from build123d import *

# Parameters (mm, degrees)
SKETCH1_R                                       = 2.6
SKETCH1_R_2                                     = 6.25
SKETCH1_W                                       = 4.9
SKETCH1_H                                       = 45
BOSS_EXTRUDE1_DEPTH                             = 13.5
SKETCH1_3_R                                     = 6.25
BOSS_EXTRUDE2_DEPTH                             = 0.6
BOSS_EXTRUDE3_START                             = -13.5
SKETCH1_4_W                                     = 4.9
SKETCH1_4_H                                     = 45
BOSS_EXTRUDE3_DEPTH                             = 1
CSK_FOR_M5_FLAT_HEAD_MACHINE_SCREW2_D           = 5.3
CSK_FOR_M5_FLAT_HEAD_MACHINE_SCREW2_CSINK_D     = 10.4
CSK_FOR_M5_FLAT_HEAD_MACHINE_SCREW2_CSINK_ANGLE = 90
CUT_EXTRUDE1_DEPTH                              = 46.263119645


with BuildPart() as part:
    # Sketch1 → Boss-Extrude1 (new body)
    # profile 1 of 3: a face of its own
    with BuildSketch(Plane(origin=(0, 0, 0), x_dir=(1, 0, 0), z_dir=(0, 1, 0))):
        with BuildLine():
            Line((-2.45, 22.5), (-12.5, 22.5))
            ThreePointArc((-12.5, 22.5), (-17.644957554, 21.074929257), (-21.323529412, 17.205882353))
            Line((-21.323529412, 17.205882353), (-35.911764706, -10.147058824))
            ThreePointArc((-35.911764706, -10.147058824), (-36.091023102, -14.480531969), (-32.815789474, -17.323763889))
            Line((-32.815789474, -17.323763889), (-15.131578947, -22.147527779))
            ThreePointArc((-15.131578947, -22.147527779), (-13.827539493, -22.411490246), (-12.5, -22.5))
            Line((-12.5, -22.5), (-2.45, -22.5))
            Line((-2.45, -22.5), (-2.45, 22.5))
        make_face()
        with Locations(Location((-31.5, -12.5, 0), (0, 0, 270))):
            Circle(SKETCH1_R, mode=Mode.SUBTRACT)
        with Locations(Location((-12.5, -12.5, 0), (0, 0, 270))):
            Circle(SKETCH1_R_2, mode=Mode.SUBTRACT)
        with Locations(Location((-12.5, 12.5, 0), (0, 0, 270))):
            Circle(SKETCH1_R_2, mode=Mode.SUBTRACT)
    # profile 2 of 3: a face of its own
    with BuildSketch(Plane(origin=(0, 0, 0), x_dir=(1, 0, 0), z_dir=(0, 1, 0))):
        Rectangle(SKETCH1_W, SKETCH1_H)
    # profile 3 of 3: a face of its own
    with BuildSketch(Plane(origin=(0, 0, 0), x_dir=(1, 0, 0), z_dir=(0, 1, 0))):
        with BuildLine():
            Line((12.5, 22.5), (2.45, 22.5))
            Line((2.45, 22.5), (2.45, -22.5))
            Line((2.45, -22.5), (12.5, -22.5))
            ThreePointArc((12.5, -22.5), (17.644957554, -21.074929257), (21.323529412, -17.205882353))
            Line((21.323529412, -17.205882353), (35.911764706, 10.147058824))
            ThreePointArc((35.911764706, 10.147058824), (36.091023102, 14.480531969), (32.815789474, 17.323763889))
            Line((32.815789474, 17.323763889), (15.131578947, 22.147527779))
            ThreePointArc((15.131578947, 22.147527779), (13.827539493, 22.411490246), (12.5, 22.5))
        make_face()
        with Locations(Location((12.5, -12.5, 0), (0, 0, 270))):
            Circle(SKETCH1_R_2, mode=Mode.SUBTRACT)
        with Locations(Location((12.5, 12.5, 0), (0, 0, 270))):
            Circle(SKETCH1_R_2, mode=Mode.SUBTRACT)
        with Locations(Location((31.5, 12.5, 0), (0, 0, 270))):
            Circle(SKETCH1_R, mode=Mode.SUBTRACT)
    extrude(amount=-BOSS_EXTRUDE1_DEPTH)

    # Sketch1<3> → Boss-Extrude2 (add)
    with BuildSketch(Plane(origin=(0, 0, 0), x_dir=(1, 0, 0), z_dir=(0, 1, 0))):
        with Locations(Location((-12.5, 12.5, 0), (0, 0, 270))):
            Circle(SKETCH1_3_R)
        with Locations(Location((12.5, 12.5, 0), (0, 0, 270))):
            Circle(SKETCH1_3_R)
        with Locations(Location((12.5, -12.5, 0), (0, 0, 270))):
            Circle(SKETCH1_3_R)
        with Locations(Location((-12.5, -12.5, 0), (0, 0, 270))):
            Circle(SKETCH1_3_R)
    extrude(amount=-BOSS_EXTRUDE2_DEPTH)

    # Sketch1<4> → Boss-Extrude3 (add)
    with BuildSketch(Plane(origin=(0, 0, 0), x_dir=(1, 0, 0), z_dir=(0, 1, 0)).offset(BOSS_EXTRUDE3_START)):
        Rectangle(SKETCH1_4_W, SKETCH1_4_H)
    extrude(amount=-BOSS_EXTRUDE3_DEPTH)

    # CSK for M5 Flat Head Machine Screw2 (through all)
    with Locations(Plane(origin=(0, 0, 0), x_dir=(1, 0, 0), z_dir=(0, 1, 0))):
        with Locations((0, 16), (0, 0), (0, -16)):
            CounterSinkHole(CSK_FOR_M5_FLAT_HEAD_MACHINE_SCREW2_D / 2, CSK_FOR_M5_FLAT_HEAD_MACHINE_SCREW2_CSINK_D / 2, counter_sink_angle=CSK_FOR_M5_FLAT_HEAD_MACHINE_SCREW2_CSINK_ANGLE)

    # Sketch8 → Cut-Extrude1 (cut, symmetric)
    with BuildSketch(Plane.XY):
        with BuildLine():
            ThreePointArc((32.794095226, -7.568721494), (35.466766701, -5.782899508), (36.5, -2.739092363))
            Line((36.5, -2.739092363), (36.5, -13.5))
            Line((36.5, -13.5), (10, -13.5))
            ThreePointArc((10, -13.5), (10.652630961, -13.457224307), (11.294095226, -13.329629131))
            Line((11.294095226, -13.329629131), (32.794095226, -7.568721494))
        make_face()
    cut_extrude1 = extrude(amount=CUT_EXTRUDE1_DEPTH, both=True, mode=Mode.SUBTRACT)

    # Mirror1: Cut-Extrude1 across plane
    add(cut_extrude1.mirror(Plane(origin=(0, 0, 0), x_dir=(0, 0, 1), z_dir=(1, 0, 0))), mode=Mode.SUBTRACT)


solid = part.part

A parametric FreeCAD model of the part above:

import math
import FreeCAD as App
import Part
import Sketcher
Q = App.Units.Quantity


def add_polygon(sketch, points):
    """Adds a closed chain of lines whose ends are joined by coincident constraints."""
    first, n = sketch.GeometryCount, len(points)
    for a, b in zip(points, points[1:] + points[:1]):
        sketch.addGeometry(Part.LineSegment(App.Vector(*a, 0), App.Vector(*b, 0)), False)
    for i in range(n):
        sketch.addConstraint(Sketcher.Constraint("Coincident", first + i, 2, first + (i + 1) % n, 1))

doc = App.newDocument("Part")
body = doc.addObject("PartDesign::Body", "Body")

# Sketch on XZ plane
sketch1 = doc.addObject("Sketcher::SketchObject", "Sketch")
body.addObject(sketch1)
sketch1.AttachmentSupport = (doc.XZ_Plane, [""])
sketch1.MapMode = "FlatFace"
sketch1.addGeometry([
    Part.ArcOfCircle(Part.Circle(App.Vector(-12.5, -12.5, 0), App.Vector(0, 0, 1), 10), math.radians(-152), math.radians(-90)),  # 0
    Part.LineSegment(App.Vector(-21.3, -17.2, 0), App.Vector(-35.9, 10.1, 0)),  # 1
    Part.ArcOfCircle(Part.Circle(App.Vector(-31.5, 12.5, 0), App.Vector(0, 0, 1), 5), math.radians(105), math.radians(208)),  # 2
    Part.LineSegment(App.Vector(-32.8, 17.3, 0), App.Vector(-15.1, 22.1, 0)),  # 3
    Part.ArcOfCircle(Part.Circle(App.Vector(-12.5, 12.5, 0), App.Vector(0, 0, 1), 10), math.radians(90), math.radians(105.26)),  # 4
    Part.LineSegment(App.Vector(-12.5, 22.5, 0), App.Vector(12.5, 22.5, 0)),  # 5
    Part.ArcOfCircle(Part.Circle(App.Vector(12.5, 12.5, 0), App.Vector(0, 0, 1), 10), math.radians(28), math.radians(90)),  # 6
    Part.LineSegment(App.Vector(21.3, 17.2, 0), App.Vector(35.9, -10.1, 0)),  # 7
    Part.ArcOfCircle(Part.Circle(App.Vector(31.5, -12.5, 0), App.Vector(0, 0, 1), 5), math.radians(-75), math.radians(28)),  # 8
    Part.LineSegment(App.Vector(32.8, -17.3, 0), App.Vector(15.1, -22.1, 0)),  # 9
    Part.ArcOfCircle(Part.Circle(App.Vector(12.5, -12.5, 0), App.Vector(0, 0, 1), 10), math.radians(-90), math.radians(-74.74)),  # 10
    Part.LineSegment(App.Vector(12.5, -22.5, 0), App.Vector(-12.5, -22.5, 0)),  # 11
    Part.Circle(App.Vector(-31.5, 12.5, 0), App.Vector(0, 0, 1), 2.6),  # 12
    Part.Circle(App.Vector(-12.5, 12.5, 0), App.Vector(0, 0, 1), 6.2),  # 13
    Part.Circle(App.Vector(-12.5, -12.5, 0), App.Vector(0, 0, 1), 6.2),  # 14
    Part.Circle(App.Vector(31.5, -12.5, 0), App.Vector(0, 0, 1), 2.6),  # 15
    Part.Circle(App.Vector(12.5, 12.5, 0), App.Vector(0, 0, 1), 6.2),  # 16
    Part.Circle(App.Vector(12.5, -12.5, 0), App.Vector(0, 0, 1), 6.2),  # 17
], False)
sketch1.addConstraint([
    Sketcher.Constraint("Tangent", 0, 1, 1, 1),
    Sketcher.Constraint("Tangent", 1, 2, 2, 2),
    Sketcher.Constraint("Tangent", 2, 1, 3, 1),
    Sketcher.Constraint("Tangent", 3, 2, 4, 2),
    Sketcher.Constraint("Tangent", 4, 1, 5, 1),
    Sketcher.Constraint("Tangent", 5, 2, 6, 2),
    Sketcher.Constraint("Tangent", 6, 1, 7, 1),
    Sketcher.Constraint("Tangent", 7, 2, 8, 2),
    Sketcher.Constraint("Tangent", 8, 1, 9, 1),
    Sketcher.Constraint("Tangent", 9, 2, 10, 2),
    Sketcher.Constraint("Tangent", 10, 1, 11, 1),
    Sketcher.Constraint("Tangent", 11, 2, 0, 2),
    Sketcher.Constraint("Horizontal", 5),
    Sketcher.Constraint("Horizontal", 11),
    Sketcher.Constraint("Coincident", 12, 3, 2, 3),
    Sketcher.Constraint("Coincident", 13, 3, 4, 3),
    Sketcher.Constraint("Coincident", 14, 3, 0, 3),
    Sketcher.Constraint("Coincident", 15, 3, 8, 3),
    Sketcher.Constraint("Coincident", 16, 3, 6, 3),
    Sketcher.Constraint("Coincident", 17, 3, 10, 3),
    Sketcher.Constraint("Equal", 0, 4),
    Sketcher.Constraint("Equal", 4, 6),
    Sketcher.Constraint("Equal", 2, 8),
    Sketcher.Constraint("Equal", 6, 10),
    Sketcher.Constraint("Equal", 13, 14),
    Sketcher.Constraint("Equal", 12, 15),
    Sketcher.Constraint("Equal", 14, 16),
    Sketcher.Constraint("Equal", 16, 17),
    Sketcher.Constraint("Symmetric", 0, 3, 6, 3, -1, 1),
    Sketcher.Constraint("Symmetric", 2, 3, 8, 3, -1, 1),
    Sketcher.Constraint("Parallel", 3, 9),
    Sketcher.Constraint("Horizontal", 2, 3, 4, 3),
    Sketcher.Constraint("Vertical", 0, 3, 4, 3),
    Sketcher.Constraint("Radius", 0, Q("10 mm")),
    Sketcher.Constraint("Radius", 2, Q("5 mm")),
    Sketcher.Constraint("Diameter", 12, Q("5.2 mm")),
    Sketcher.Constraint("Diameter", 13, Q("12.5 mm")),
    Sketcher.Constraint("DistanceX", 5, 1, 5, 2, Q("25 mm")),
    Sketcher.Constraint("Distance", 1, Q("31 mm")),
    Sketcher.Constraint("DistanceX", 2, 3, 0, 3, Q("19 mm")),
])
pad1 = doc.addObject("PartDesign::Pad", "Pad")
body.addObject(pad1)
pad1.Profile = sketch1
pad1.Length = 13.5

# Sketch on XZ plane
sketch2 = doc.addObject("Sketcher::SketchObject", "Sketch001")
body.addObject(sketch2)
sketch2.AttachmentSupport = (doc.XZ_Plane, [""])
sketch2.MapMode = "FlatFace"
sketch2.addGeometry([
    Part.Circle(App.Vector(-12, -12, 0), App.Vector(0, 0, 1), 6),
    Part.Circle(App.Vector(12, -12, 0), App.Vector(0, 0, 1), 6),
    Part.Circle(App.Vector(12, 12, 0), App.Vector(0, 0, 1), 6),
    Part.Circle(App.Vector(-12, 12, 0), App.Vector(0, 0, 1), 6),
], False)
sketch2.addConstraint([
    Sketcher.Constraint("Equal", 0, 1),
    Sketcher.Constraint("Equal", 1, 2),
    Sketcher.Constraint("Equal", 2, 3),
    Sketcher.Constraint("Symmetric", 0, 3, 2, 3, -1, 1),
    Sketcher.Constraint("Symmetric", 1, 3, 3, 3, -1, 1),
    Sketcher.Constraint("Symmetric", 0, 3, 1, 3, -2),
    Sketcher.Constraint("Diameter", 0, Q("12.5 mm")),
    Sketcher.Constraint("DistanceX", 0, 3, 1, 3, Q("25 mm")),
    Sketcher.Constraint("DistanceY", 1, 3, 2, 3, Q("25 mm")),
])
pad2 = doc.addObject("PartDesign::Pad", "Pad001")
body.addObject(pad2)
pad2.Profile = sketch2
pad2.Length = 0.6

# Sketch on XZ plane
sketch3 = doc.addObject("Sketcher::SketchObject", "Sketch002")
body.addObject(sketch3)
sketch3.AttachmentSupport = (doc.XZ_Plane, [""])
sketch3.MapMode = "FlatFace"
sketch3.AttachmentOffset = App.Placement(App.Vector(0, 0, 13.5), App.Rotation())
add_polygon(sketch3, [(-2.5, -22.5), (-2.5, 22.5), (2.5, 22.5), (2.5, -22.5)])  # lines 0-3
sketch3.addConstraint([
    Sketcher.Constraint("Vertical", 0),
    Sketcher.Constraint("Horizontal", 1),
    Sketcher.Constraint("Vertical", 2),
    Sketcher.Constraint("Horizontal", 3),
    Sketcher.Constraint("Symmetric", 0, 2, 2, 2, -1, 1),
    Sketcher.Constraint("DistanceY", 0, 1, 0, 2, Q("45 mm")),
    Sketcher.Constraint("DistanceX", 1, 1, 1, 2, Q("4.9 mm")),
])
pad3 = doc.addObject("PartDesign::Pad", "Pad002")
body.addObject(pad3)
pad3.Profile = sketch3
pad3.Length = 1

# Sketch on XZ plane
sketch4 = doc.addObject("Sketcher::SketchObject", "Sketch003")
body.addObject(sketch4)
sketch4.AttachmentSupport = (doc.XZ_Plane, [""])
sketch4.MapMode = "FlatFace"
sketch4.addGeometry([
    Part.Circle(App.Vector(0, -16, 0), App.Vector(0, 0, 1), 2.6),
    Part.Circle(App.Vector(0, 0, 0), App.Vector(0, 0, 1), 2.6),
    Part.Circle(App.Vector(0, 16, 0), App.Vector(0, 0, 1), 2.6),
], False)
sketch4.addConstraint([
    Sketcher.Constraint("Coincident", 1, 3, -1, 1),
    Sketcher.Constraint("Equal", 0, 1),
    Sketcher.Constraint("Equal", 1, 2),
    Sketcher.Constraint("Symmetric", 0, 3, 2, 3, -1, 1),
    Sketcher.Constraint("PointOnObject", 0, 3, -2),
    Sketcher.Constraint("Diameter", 0, Q("5.3 mm")),
    Sketcher.Constraint("DistanceY", 0, 3, -1, 1, Q("16 mm")),
])
doc.recompute()
hole = doc.addObject("PartDesign::Hole", "Hole")
body.addObject(hole)
hole.Profile = sketch4
hole.ThreadType = "None"
hole.Diameter = 5.3
hole.DepthType = "ThroughAll"
hole.HoleCutType = "Countersink"
hole.HoleCutDiameter = 10.4
hole.HoleCutCountersinkAngle = 90
hole.Reversed = True

# Sketch on XY plane
sketch5 = doc.addObject("Sketcher::SketchObject", "Sketch004")
body.addObject(sketch5)
sketch5.AttachmentSupport = (doc.XY_Plane, [""])
sketch5.MapMode = "FlatFace"
sketch5.addGeometry([
    Part.ArcOfCircle(Part.Circle(App.Vector(31.5, -2.7, 0), App.Vector(0, 0, 1), 5), math.radians(-75), math.radians(0)),  # 0
    Part.LineSegment(App.Vector(32.8, -7.6, 0), App.Vector(11.3, -13.3, 0)),  # 1
    Part.ArcOfCircle(Part.Circle(App.Vector(10, -8.5, 0), App.Vector(0, 0, 1), 5), math.radians(-90), math.radians(-75)),  # 2
    Part.LineSegment(App.Vector(10, -13.5, 0), App.Vector(36.5, -13.5, 0)),  # 3
    Part.LineSegment(App.Vector(36.5, -13.5, 0), App.Vector(36.5, -2.7, 0)),  # 4
], False)
sketch5.addConstraint([
    Sketcher.Constraint("Tangent", 0, 1, 1, 1),
    Sketcher.Constraint("Tangent", 1, 2, 2, 2),
    Sketcher.Constraint("Tangent", 2, 1, 3, 1),
    Sketcher.Constraint("Coincident", 3, 2, 4, 1),
    Sketcher.Constraint("Tangent", 4, 2, 0, 2),
    Sketcher.Constraint("Horizontal", 3),
    Sketcher.Constraint("Vertical", 4),
    Sketcher.Constraint("Equal", 0, 2),
    Sketcher.Constraint("Radius", 0, Q("5 mm")),
    Sketcher.Constraint("Angle", 1, Q("-165 deg")),
    Sketcher.Constraint("DistanceX", 3, 1, 3, 2, Q("26.5 mm")),
    Sketcher.Constraint("DistanceX", -1, 1, 2, 3, Q("10 mm")),
    Sketcher.Constraint("DistanceY", 2, 3, -1, 1, Q("8.5 mm")),
])
pocket1 = doc.addObject("PartDesign::Pocket", "Pocket")
body.addObject(pocket1)
pocket1.Profile = sketch5
pocket1.Length = 92.526239
pocket1.Midplane = True
doc.recompute()

mirrored = doc.addObject("PartDesign::Mirrored", "Mirrored")
body.addObject(mirrored)
mirrored.Originals = [pocket1]
mirrored.MirrorPlane = (doc.YZ_Plane, [""])
body.Tip = mirrored

doc.recompute()
